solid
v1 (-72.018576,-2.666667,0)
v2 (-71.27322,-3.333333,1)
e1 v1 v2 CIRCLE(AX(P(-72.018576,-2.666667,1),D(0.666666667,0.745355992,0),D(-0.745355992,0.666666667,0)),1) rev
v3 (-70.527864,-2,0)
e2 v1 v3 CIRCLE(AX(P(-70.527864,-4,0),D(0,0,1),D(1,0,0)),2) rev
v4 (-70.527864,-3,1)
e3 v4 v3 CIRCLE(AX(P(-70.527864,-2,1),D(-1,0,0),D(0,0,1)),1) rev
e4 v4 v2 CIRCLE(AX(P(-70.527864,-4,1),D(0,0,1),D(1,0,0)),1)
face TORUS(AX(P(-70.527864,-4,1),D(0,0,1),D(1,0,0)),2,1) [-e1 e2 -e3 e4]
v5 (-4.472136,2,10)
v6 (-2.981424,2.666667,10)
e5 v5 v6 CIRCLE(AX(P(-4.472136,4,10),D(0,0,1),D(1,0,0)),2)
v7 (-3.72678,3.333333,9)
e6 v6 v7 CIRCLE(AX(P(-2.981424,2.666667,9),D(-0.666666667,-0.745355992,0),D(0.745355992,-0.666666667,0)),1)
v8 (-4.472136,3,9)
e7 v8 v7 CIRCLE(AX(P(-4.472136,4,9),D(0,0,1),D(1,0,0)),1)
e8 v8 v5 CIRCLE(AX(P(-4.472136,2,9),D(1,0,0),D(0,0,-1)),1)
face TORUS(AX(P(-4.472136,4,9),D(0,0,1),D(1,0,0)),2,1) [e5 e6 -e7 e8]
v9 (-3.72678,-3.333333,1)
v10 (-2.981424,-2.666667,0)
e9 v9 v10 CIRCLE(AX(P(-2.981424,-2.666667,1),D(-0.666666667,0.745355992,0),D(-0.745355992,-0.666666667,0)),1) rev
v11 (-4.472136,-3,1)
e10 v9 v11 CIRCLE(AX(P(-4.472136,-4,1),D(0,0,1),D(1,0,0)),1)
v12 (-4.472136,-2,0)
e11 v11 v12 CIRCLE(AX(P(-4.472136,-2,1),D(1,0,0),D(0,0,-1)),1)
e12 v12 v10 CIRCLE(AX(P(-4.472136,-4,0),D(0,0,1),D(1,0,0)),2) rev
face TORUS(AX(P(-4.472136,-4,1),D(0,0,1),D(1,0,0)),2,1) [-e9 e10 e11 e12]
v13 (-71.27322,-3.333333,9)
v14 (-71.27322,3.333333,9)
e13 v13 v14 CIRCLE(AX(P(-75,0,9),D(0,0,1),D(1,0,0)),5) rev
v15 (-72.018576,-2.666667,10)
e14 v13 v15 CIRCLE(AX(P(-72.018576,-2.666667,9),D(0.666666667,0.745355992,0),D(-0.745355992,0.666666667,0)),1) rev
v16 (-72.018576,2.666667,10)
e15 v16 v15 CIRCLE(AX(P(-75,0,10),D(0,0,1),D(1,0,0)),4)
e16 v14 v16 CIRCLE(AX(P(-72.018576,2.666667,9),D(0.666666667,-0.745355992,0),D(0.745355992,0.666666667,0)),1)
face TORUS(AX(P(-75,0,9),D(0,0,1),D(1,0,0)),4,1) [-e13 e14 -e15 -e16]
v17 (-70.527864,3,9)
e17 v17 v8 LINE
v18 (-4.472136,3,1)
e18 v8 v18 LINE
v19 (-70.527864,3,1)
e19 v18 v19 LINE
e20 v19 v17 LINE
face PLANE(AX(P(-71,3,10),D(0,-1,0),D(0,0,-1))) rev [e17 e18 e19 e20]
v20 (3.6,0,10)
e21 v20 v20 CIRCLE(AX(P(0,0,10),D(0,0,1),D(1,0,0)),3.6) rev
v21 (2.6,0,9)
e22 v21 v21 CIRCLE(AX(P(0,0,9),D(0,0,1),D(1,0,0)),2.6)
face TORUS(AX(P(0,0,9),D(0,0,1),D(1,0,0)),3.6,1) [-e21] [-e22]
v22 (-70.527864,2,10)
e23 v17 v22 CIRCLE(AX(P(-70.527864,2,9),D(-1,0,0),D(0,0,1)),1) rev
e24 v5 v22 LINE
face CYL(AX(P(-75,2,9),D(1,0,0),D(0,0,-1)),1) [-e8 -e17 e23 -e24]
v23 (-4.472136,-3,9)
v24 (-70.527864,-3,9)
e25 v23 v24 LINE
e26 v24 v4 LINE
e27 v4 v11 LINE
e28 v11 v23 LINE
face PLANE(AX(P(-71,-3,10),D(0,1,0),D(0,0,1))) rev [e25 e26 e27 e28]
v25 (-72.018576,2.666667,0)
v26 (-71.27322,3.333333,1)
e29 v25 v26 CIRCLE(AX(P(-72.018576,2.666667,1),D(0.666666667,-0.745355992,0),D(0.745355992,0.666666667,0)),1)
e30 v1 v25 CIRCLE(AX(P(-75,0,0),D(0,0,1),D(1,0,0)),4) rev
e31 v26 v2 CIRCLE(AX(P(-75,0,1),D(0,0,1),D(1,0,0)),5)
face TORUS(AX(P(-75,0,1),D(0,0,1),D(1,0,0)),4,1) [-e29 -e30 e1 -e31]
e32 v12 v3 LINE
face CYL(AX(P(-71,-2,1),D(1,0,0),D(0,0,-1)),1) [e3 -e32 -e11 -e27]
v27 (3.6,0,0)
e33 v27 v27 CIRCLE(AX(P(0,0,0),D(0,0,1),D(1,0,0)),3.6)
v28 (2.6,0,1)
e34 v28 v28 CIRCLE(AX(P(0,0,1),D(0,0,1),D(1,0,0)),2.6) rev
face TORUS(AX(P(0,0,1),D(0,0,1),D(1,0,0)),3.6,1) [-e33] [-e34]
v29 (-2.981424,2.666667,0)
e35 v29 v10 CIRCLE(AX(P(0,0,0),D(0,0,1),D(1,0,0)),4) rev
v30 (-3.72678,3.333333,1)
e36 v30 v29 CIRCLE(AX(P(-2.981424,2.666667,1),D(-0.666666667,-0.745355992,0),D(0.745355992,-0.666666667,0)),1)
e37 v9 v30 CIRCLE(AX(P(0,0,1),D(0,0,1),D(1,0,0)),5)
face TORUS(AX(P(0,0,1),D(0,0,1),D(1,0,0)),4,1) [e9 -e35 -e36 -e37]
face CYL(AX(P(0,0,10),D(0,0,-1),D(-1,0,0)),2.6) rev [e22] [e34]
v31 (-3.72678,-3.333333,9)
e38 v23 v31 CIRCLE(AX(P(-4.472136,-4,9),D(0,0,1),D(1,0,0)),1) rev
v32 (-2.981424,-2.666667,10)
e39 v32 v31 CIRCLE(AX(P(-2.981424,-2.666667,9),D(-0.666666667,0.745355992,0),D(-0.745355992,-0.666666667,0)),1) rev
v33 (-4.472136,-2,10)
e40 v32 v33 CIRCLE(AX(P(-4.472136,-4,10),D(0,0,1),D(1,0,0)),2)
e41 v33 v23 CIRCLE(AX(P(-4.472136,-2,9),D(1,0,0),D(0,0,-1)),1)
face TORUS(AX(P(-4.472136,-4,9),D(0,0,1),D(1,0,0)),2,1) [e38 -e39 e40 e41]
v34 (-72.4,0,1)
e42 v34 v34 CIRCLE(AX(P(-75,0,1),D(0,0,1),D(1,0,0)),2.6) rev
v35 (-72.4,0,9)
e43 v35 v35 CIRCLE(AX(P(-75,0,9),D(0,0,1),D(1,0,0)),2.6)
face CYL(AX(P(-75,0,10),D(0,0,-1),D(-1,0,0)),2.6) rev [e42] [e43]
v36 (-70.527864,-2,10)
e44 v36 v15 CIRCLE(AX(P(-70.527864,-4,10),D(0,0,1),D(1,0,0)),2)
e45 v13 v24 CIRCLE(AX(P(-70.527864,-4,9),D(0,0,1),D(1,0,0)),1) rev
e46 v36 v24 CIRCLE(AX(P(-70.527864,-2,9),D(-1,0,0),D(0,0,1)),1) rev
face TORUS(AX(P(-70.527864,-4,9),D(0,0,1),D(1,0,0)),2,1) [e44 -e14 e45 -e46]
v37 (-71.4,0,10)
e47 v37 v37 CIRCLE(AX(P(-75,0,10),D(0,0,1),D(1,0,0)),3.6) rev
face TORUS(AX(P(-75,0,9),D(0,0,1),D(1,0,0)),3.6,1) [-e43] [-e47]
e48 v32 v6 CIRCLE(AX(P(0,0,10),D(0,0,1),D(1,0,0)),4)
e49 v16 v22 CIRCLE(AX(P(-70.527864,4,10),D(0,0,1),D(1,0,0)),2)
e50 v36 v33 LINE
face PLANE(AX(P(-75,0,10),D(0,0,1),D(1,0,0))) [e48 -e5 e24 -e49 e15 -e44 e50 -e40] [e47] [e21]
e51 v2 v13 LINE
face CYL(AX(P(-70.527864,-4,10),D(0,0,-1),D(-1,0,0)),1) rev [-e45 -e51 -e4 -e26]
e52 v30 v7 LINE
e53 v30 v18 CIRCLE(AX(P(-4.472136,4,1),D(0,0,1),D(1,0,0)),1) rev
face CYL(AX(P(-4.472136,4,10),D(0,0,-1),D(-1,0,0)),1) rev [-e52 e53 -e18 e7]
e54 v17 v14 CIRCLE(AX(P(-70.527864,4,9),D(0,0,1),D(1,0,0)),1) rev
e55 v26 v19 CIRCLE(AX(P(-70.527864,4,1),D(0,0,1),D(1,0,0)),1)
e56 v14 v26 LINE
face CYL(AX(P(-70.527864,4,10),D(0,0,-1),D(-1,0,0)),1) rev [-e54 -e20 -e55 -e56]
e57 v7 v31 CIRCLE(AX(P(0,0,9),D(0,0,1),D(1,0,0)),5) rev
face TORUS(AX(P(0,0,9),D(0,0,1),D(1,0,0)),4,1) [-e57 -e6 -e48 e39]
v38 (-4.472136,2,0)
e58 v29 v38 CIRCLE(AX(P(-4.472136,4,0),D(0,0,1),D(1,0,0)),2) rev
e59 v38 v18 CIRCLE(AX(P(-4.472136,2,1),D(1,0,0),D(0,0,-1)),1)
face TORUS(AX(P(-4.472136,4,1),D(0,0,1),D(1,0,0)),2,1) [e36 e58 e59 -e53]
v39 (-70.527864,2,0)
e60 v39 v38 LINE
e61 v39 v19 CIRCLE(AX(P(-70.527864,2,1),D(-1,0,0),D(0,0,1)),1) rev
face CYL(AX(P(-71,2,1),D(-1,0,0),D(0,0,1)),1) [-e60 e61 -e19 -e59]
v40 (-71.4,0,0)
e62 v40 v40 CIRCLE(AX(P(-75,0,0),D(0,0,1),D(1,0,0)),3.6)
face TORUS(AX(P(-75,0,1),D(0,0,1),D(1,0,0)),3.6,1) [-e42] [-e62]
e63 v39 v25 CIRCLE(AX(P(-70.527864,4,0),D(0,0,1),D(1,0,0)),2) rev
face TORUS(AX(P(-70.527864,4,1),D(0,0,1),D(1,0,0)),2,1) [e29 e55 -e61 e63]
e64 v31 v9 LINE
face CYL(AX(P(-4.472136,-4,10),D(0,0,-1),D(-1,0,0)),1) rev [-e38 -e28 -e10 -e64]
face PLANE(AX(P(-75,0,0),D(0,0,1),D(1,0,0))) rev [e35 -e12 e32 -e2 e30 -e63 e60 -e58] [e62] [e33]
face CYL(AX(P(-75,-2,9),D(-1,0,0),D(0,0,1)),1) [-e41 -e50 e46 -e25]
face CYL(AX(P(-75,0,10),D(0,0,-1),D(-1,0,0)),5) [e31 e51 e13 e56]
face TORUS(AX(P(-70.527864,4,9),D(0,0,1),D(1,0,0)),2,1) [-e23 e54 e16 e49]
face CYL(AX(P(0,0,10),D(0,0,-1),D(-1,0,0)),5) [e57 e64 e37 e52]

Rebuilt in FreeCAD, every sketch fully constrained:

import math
import FreeCAD as App
import Part
import Sketcher

V = App.Vector
Q = App.Units.Quantity

doc = App.newDocument("Part")
params = doc.addObject("Spreadsheet::Sheet", "Params")
for row, (alias, value) in enumerate([
    ("sketch1_radius", "5 mm"),
    ("sketch1_diameter", "5.2 mm"),
    ("sketch1_width", "67 mm"),
    ("pad1_length", "10 mm"),
    ("fillet_radius", "1 mm"),
], start=1):
    params.set(f"A{row}", alias)
    params.set(f"B{row}", "=" + value)
    params.setAlias(f"B{row}", alias)

body = doc.addObject("PartDesign::Body", "Body")

sketch1 = body.newObject("Sketcher::SketchObject", "Sketch")
sketch1.AttachmentSupport = (doc.getObject("XY_Plane"), [""])
sketch1.MapMode = "FlatFace"
sketch1.addGeometry(Part.LineSegment(V(-4, 3, 0), V(-71, 3, 0)), False)
sketch1.addGeometry(Part.ArcOfCircle(Part.Circle(V(-75, 0, 0), V(0, 0, 1), 5), math.radians(37), math.radians(323)), False)
sketch1.addGeometry(Part.LineSegment(V(-71, -3, 0), V(-4, -3, 0)), False)
sketch1.addGeometry(Part.ArcOfCircle(Part.Circle(V(0, 0, 0), V(0, 0, 1), 5), math.radians(-143), math.radians(143)), False)
sketch1.addGeometry(Part.Circle(V(0, 0, 0), V(0, 0, 1), 2.6), False)
sketch1.addGeometry(Part.Circle(V(-75, 0, 0), V(0, 0, 1), 2.6), False)
sketch1.addConstraint(Sketcher.Constraint("Coincident", 0, 2, 1, 1))
sketch1.addConstraint(Sketcher.Constraint("Coincident", 1, 2, 2, 1))
sketch1.addConstraint(Sketcher.Constraint("Coincident", 2, 2, 3, 1))
sketch1.addConstraint(Sketcher.Constraint("Coincident", 3, 2, 0, 1))
sketch1.addConstraint(Sketcher.Constraint("Horizontal", 0))
sketch1.addConstraint(Sketcher.Constraint("Horizontal", 2))
sketch1.addConstraint(Sketcher.Constraint("Coincident", 3, 3, -1, 1))
sketch1.addConstraint(Sketcher.Constraint("Coincident", 4, 3, -1, 1))
sketch1.addConstraint(Sketcher.Constraint("Coincident", 5, 3, 1, 3))
sketch1.addConstraint(Sketcher.Constraint("Equal", 1, 3))
sketch1.addConstraint(Sketcher.Constraint("Equal", 4, 5))
sketch1.addConstraint(Sketcher.Constraint("Symmetric", 0, 2, 1, 2, -1))
sketch1.addConstraint(Sketcher.Constraint("Radius", 1, Q("5 mm")))
sketch1.addConstraint(Sketcher.Constraint("Diameter", 4, Q("5.2 mm")))
sketch1.addConstraint(Sketcher.Constraint("DistanceX", 0, 2, 0, 1, Q("67 mm")))
sketch1.addConstraint(Sketcher.Constraint("DistanceX", 1, 3, -1, 1, Q("75 mm")))
sketch1.setExpression("Constraints[12]", "Params.sketch1_radius")
sketch1.setExpression("Constraints[13]", "Params.sketch1_diameter")
sketch1.setExpression("Constraints[14]", "Params.sketch1_width")
pad1 = body.newObject("PartDesign::Pad", "Pad")
pad1.Profile = sketch1
pad1.setExpression("Length", "Params.pad1_length")
doc.recompute()

fillet = body.newObject("PartDesign::Fillet", "Fillet")
fillet.Base = (pad1, ["Edge1"])
fillet.UseAllEdges = True
fillet.setExpression("Radius", "Params.fillet_radius")

doc.recompute()
